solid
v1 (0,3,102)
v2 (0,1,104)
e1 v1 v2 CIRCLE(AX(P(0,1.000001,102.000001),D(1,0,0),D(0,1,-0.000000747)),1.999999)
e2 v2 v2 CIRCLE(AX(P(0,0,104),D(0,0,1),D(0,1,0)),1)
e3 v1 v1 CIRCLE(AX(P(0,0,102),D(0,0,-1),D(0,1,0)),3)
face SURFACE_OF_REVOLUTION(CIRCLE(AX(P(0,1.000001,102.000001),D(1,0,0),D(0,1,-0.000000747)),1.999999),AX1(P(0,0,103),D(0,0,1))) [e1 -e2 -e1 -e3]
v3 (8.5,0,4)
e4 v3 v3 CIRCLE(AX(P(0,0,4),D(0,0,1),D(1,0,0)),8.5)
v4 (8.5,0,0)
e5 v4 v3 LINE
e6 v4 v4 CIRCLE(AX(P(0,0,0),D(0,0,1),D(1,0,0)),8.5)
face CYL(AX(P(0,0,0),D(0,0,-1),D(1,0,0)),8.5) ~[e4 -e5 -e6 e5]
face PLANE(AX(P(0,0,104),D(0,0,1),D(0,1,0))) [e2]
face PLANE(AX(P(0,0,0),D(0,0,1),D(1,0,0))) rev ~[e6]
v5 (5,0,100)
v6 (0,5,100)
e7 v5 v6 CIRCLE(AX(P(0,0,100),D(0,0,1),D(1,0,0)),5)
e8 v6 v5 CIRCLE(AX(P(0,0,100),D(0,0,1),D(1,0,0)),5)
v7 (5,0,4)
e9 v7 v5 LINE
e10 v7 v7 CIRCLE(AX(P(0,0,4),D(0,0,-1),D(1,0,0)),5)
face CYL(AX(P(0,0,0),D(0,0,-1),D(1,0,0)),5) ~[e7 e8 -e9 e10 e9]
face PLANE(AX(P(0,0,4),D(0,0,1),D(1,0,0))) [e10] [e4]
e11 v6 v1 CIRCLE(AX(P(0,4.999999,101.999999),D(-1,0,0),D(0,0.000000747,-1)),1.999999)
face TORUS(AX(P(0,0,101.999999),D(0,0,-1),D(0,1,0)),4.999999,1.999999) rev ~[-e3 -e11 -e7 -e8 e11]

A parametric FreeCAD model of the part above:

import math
import FreeCAD as App
import Part
import Sketcher
from FreeCAD import Vector

doc = App.newDocument("Part")
params = doc.addObject("Spreadsheet::Sheet", "Params")
for row, (alias, value) in enumerate([
    ("sketch1_diameter", "17 mm"),
    ("pad1_length", "4 mm"),
    ("sketch2_diameter", "10 mm"),
    ("pad2_length", "100 mm"),
    ("sketch3_radius", "1.999999 mm"),
    ("sketch3_width", "3 mm"),
    ("revolution_angle", "360 deg"),
    ("sketch4_radius", "1.999999 mm"),
    ("sketch4_width", "3 mm"),
    ("revolution2_angle", "360 deg"),
], start=1):
    params.set(f"A{row}", alias)
    params.set(f"B{row}", "=" + value)
    params.setAlias(f"B{row}", alias)

body = doc.addObject("PartDesign::Body", "Body")

# Sketch on XY plane
sketch1 = body.newObject("Sketcher::SketchObject", "Sketch")
sketch1.AttachmentSupport = (doc.getObject("XY_Plane"), [""])
sketch1.MapMode = "FlatFace"
sketch1.addGeometry(Part.Circle(Vector(0, 0, 0), Vector(0, 0, 1), 8), False)
sketch1.addConstraint([
    Sketcher.Constraint("Coincident", 0, 3, -1, 1),
    Sketcher.Constraint("Diameter", 0, 17.0),
])
sketch1.setExpression("Constraints[1]", "Params.sketch1_diameter")
pad1 = body.newObject("PartDesign::Pad", "Pad")
pad1.Profile = sketch1
pad1.setExpression("Length", "Params.pad1_length")

# Sketch on XY plane
sketch2 = body.newObject("Sketcher::SketchObject", "Sketch001")
sketch2.AttachmentSupport = (doc.getObject("XY_Plane"), [""])
sketch2.MapMode = "FlatFace"
sketch2.addGeometry(Part.Circle(Vector(0, 0, 0), Vector(0, 0, 1), 5), False)
sketch2.addConstraint([
    Sketcher.Constraint("Coincident", 0, 3, -1, 1),
    Sketcher.Constraint("Diameter", 0, 10.0),
])
sketch2.setExpression("Constraints[1]", "Params.sketch2_diameter")
pad2 = body.newObject("PartDesign::Pad", "Pad001")
pad2.Profile = sketch2
pad2.setExpression("Length", "Params.pad2_length")

# Sketch on YZ plane
sketch3 = body.newObject("Sketcher::SketchObject", "Sketch002")
sketch3.AttachmentSupport = (doc.getObject("YZ_Plane"), [""])
sketch3.MapMode = "FlatFace"
sketch3.addGeometry([
    Part.LineSegment(Vector(3, 102, 0), Vector(0, 102, 0)),
    Part.LineSegment(Vector(0, 102, 0), Vector(0, 100, 0)),
    Part.LineSegment(Vector(0, 100, 0), Vector(5, 100, 0)),
    Part.ArcOfCircle(Part.Circle(Vector(5, 102, 0), Vector(0, 0, 1), 2), math.radians(180), math.radians(270)),
], False)
sketch3.addConstraint([
    Sketcher.Constraint("Coincident", 0, 2, 1, 1),
    Sketcher.Constraint("Coincident", 1, 2, 2, 1),
    Sketcher.Constraint("Tangent", 2, 2, 3, 2),
    Sketcher.Constraint("Coincident", 3, 1, 0, 1),
    Sketcher.Constraint("Horizontal", 0),
    Sketcher.Constraint("Vertical", 1),
    Sketcher.Constraint("Horizontal", 2),
    Sketcher.Constraint("PointOnObject", 0, 2, -2),
    Sketcher.Constraint("Horizontal", 3, 3, 0, 2),
    Sketcher.Constraint("Radius", 3, 1.999999),
    Sketcher.Constraint("DistanceX", 0, 2, 0, 1, 3.0),
    Sketcher.Constraint("DistanceY", -1, 1, 3, 3, 101.999999),
])
sketch3.setExpression("Constraints[9]", "Params.sketch3_radius")
sketch3.setExpression("Constraints[10]", "Params.sketch3_width")
revolution = body.newObject("PartDesign::Revolution", "Revolution")
revolution.Profile = sketch3
revolution.ReferenceAxis = (sketch3, ["V_Axis"])
revolution.setExpression("Angle", "Params.revolution_angle")

# Sketch on YZ plane
sketch4 = body.newObject("Sketcher::SketchObject", "Sketch003")
sketch4.AttachmentSupport = (doc.getObject("YZ_Plane"), [""])
sketch4.MapMode = "FlatFace"
sketch4.addGeometry([
    Part.LineSegment(Vector(0, 104, 0), Vector(0, 102, 0)),
    Part.LineSegment(Vector(0, 102, 0), Vector(3, 102, 0)),
    Part.ArcOfCircle(Part.Circle(Vector(1, 102, 0), Vector(0, 0, 1), 2), math.radians(0), math.radians(90)),
    Part.LineSegment(Vector(1, 104, 0), Vector(0, 104, 0)),
], False)
sketch4.addConstraint([
    Sketcher.Constraint("Coincident", 0, 2, 1, 1),
    Sketcher.Constraint("Coincident", 1, 2, 2, 1),
    Sketcher.Constraint("Tangent", 2, 2, 3, 1),
    Sketcher.Constraint("Coincident", 3, 2, 0, 1),
    Sketcher.Constraint("Vertical", 0),
    Sketcher.Constraint("Horizontal", 1),
    Sketcher.Constraint("Horizontal", 3),
    Sketcher.Constraint("PointOnObject", 0, 2, -2),
    Sketcher.Constraint("Horizontal", 2, 3, 0, 2),
    Sketcher.Constraint("Radius", 2, 1.999999),
    Sketcher.Constraint("DistanceX", 1, 1, 1, 2, 3.0),
    Sketcher.Constraint("DistanceY", -1, 1, 2, 3, 102.000001),
])
sketch4.setExpression("Constraints[9]", "Params.sketch4_radius")
sketch4.setExpression("Constraints[10]", "Params.sketch4_width")
revolution2 = body.newObject("PartDesign::Revolution", "Revolution001")
revolution2.Profile = sketch4
revolution2.ReferenceAxis = (sketch4, ["V_Axis"])
revolution2.setExpression("Angle", "Params.revolution2_angle")

doc.recompute()
